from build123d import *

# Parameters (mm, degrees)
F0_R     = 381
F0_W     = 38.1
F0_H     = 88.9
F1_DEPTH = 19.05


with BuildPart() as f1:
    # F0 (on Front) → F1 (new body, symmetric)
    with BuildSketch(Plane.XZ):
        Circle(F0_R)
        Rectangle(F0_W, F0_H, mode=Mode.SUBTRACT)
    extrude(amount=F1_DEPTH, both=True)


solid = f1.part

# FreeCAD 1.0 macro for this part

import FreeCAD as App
import Part
import Sketcher
from FreeCAD import Vector
Q = App.Units.Quantity


def add_polygon(sketch, points):
    """Adds a closed chain of lines whose ends are joined by coincident constraints."""
    first, n = sketch.GeometryCount, len(points)
    for a, b in zip(points, points[1:] + points[:1]):
        sketch.addGeometry(Part.LineSegment(App.Vector(*a, 0), App.Vector(*b, 0)), False)
    for i in range(n):
        sketch.addConstraint(Sketcher.Constraint("Coincident", first + i, 2, first + (i + 1) % n, 1))

doc = App.newDocument("Part")
body = doc.addObject("PartDesign::Body", "Body")

# Sketch on XZ plane
sketch1 = doc.addObject("Sketcher::SketchObject", "Sketch")
body.addObject(sketch1)
sketch1.AttachmentSupport = (doc.XZ_Plane, [""])
sketch1.MapMode = "FlatFace"
sketch1.addGeometry(Part.Circle(Vector(0, 0, 0), Vector(0, 0, 1), 381), False)  # 0
add_polygon(sketch1, [(19, -44), (-19, -44), (-19, 44), (19, 44)])  # lines 1-4
sketch1.addConstraint(Sketcher.Constraint("Horizontal", 1))
sketch1.addConstraint(Sketcher.Constraint("Vertical", 2))
sketch1.addConstraint(Sketcher.Constraint("Horizontal", 3))
sketch1.addConstraint(Sketcher.Constraint("Vertical", 4))
sketch1.addConstraint(Sketcher.Constraint("Coincident", 0, 3, -1, 1))
sketch1.addConstraint(Sketcher.Constraint("Symmetric", 1, 2, 3, 2, -1, 1))
sketch1.addConstraint(Sketcher.Constraint("Diameter", 0, Q("30 in")))
sketch1.addConstraint(Sketcher.Constraint("DistanceX", 1, 2, 1, 1, Q("1.5 in")))
sketch1.addConstraint(Sketcher.Constraint("DistanceY", 2, 1, 2, 2, Q("3.5 in")))
pad1 = doc.addObject("PartDesign::Pad", "Pad")
body.addObject(pad1)
pad1.Profile = sketch1
pad1.Length = Q("1.5 in")
pad1.Midplane = True

doc.recompute()
